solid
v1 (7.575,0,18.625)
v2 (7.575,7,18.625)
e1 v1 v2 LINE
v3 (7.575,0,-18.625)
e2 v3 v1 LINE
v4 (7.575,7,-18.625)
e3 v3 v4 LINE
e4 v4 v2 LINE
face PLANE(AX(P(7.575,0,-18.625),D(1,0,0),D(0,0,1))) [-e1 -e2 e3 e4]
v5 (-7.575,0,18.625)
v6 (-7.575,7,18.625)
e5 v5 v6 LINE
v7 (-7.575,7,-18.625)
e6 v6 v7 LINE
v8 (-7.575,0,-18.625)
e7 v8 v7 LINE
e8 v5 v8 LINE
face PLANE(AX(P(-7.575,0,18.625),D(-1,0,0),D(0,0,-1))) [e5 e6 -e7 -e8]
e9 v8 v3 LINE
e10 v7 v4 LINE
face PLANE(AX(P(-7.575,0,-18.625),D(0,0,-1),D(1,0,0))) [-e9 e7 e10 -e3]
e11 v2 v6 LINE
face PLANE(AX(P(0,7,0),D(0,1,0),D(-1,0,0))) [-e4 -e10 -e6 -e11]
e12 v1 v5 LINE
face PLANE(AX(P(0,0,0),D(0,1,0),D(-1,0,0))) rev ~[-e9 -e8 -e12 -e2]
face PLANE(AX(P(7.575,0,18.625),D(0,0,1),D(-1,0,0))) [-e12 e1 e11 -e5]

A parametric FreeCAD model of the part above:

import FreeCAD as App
import Part
import Sketcher

V = App.Vector
Q = App.Units.Quantity


def add_polygon(sketch, points):
    """Adds a closed chain of lines whose ends are joined by coincident constraints."""
    first, n = sketch.GeometryCount, len(points)
    for a, b in zip(points, points[1:] + points[:1]):
        sketch.addGeometry(Part.LineSegment(App.Vector(*a, 0), App.Vector(*b, 0)), False)
    for i in range(n):
        sketch.addConstraint(Sketcher.Constraint("Coincident", first + i, 2, first + (i + 1) % n, 1))

doc = App.newDocument("Part")
body = doc.addObject("PartDesign::Body", "Body")

# Sketch on XZ plane
sketch1 = body.newObject("Sketcher::SketchObject", "Sketch")
sketch1.AttachmentSupport = (doc.getObject("XZ_Plane"), [""])
sketch1.MapMode = "FlatFace"
add_polygon(sketch1, [(-8, 19), (8, 19), (8, -19), (-8, -19)])  # lines 0-3
sketch1.addConstraint(Sketcher.Constraint("Horizontal", 0))
sketch1.addConstraint(Sketcher.Constraint("Vertical", 1))
sketch1.addConstraint(Sketcher.Constraint("Horizontal", 2))
sketch1.addConstraint(Sketcher.Constraint("Vertical", 3))
sketch1.addConstraint(Sketcher.Constraint("Symmetric", 0, 2, 2, 2, -1, 1))
sketch1.addConstraint(Sketcher.Constraint("DistanceX", 0, 1, 0, 2, Q("15.15 mm")))
sketch1.addConstraint(Sketcher.Constraint("DistanceY", 1, 2, 1, 1, Q("37.25 mm")))
pad1 = body.newObject("PartDesign::Pad", "Pad")
pad1.Profile = sketch1
pad1.Length = 7
pad1.Reversed = True

doc.recompute()
